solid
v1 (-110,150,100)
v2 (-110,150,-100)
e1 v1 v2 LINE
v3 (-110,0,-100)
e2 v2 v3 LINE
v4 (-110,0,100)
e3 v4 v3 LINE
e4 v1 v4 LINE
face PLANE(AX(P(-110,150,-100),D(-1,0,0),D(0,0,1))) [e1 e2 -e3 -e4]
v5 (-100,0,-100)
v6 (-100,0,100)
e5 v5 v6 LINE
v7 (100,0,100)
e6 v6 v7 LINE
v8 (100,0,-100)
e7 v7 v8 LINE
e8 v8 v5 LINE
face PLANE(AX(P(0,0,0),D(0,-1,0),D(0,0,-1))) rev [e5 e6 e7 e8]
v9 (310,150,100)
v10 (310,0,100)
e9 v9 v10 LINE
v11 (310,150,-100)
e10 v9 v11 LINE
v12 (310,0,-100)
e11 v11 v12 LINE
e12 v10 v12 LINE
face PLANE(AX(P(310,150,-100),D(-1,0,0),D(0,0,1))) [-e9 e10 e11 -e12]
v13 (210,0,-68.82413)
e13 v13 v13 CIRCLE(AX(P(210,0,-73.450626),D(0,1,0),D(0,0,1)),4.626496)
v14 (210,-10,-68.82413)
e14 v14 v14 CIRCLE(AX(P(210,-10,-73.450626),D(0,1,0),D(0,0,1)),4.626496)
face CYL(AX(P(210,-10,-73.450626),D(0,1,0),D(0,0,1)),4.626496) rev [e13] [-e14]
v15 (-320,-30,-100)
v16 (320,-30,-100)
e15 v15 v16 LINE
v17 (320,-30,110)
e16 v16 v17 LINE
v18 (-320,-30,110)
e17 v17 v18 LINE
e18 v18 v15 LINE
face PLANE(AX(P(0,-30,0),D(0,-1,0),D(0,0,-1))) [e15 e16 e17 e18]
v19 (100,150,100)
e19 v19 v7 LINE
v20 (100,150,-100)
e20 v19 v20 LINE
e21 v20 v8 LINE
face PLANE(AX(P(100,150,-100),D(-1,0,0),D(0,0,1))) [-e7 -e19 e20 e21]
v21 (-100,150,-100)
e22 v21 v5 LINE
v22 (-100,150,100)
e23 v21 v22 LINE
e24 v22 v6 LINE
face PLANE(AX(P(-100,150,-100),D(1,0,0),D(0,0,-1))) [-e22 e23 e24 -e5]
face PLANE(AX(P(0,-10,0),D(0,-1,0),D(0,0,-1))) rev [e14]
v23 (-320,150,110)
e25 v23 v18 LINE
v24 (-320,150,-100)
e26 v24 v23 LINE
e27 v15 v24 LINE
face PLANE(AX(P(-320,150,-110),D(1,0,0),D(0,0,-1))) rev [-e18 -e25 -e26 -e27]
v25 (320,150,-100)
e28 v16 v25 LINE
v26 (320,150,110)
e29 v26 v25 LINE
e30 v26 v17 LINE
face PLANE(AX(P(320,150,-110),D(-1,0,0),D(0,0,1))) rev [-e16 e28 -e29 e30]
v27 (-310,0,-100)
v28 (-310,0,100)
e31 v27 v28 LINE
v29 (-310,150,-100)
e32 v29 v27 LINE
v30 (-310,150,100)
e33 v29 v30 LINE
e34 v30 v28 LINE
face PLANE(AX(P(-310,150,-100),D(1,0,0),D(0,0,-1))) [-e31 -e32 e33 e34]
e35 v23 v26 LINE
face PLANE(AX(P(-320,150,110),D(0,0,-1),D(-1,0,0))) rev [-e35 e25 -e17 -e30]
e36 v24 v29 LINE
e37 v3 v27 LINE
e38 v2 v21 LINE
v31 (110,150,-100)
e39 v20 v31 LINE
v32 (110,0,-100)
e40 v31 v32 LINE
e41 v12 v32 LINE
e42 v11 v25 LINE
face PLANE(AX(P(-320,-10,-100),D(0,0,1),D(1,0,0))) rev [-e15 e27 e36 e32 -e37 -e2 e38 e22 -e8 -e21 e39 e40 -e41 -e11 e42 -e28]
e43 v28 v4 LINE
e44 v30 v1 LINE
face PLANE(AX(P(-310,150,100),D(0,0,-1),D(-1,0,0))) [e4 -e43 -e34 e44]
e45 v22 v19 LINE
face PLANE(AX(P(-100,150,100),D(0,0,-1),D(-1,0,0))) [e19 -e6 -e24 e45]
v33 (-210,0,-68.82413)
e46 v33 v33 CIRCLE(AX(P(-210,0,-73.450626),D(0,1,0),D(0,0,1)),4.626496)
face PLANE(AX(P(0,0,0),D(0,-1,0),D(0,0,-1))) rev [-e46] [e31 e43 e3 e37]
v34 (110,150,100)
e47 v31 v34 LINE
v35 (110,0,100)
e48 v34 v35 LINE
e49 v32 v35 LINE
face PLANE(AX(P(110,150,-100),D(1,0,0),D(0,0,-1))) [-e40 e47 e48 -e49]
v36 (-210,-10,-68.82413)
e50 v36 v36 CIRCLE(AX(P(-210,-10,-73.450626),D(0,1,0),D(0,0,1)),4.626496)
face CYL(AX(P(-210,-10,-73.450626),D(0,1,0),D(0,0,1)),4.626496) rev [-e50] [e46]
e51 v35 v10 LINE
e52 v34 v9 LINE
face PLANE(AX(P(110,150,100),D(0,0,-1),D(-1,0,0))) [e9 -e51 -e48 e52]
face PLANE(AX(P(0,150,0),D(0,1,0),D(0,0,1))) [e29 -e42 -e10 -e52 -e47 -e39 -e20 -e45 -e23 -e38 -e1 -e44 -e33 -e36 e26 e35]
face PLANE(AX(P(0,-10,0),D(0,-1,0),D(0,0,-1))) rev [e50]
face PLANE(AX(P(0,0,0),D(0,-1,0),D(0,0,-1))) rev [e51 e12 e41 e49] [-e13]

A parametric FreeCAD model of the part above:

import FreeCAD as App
import Part
import Sketcher


def add_polygon(sketch, points):
    """Adds a closed chain of lines whose ends are joined by coincident constraints."""
    first, n = sketch.GeometryCount, len(points)
    for a, b in zip(points, points[1:] + points[:1]):
        sketch.addGeometry(Part.LineSegment(App.Vector(*a, 0), App.Vector(*b, 0)), False)
    for i in range(n):
        sketch.addConstraint(Sketcher.Constraint("Coincident", first + i, 2, first + (i + 1) % n, 1))

doc = App.newDocument("Part")
params = doc.addObject("Spreadsheet::Sheet", "Params")
for row, (alias, value) in enumerate([
    ("sketch1_width", "640 mm"),
    ("sketch1_width2", "200 mm"),
    ("sketch1_height", "220 mm"),
    ("pad1_length", "150 mm"),
    ("sketch2_width", "640 mm"),
    ("sketch2_height", "220 mm"),
    ("pad2_length", "10 mm"),
    ("sketch4_width", "640 mm"),
    ("sketch4_height", "10 mm"),
    ("sketch5_width", "640 mm"),
    ("sketch5_height", "210 mm"),
    ("pad3_length", "20 mm"),
], start=1):
    params.set(f"A{row}", alias)
    params.set(f"B{row}", "=" + value)
    params.setAlias(f"B{row}", alias)

body = doc.addObject("PartDesign::Body", "Body")

sketch1 = body.newObject("Sketcher::SketchObject", "Sketch")
sketch1.AttachmentSupport = (doc.getObject("XZ_Plane"), [""])
sketch1.MapMode = "FlatFace"
add_polygon(sketch1, [(-320, -110), (-320, 110), (320, 110), (320, -110)])
add_polygon(sketch1, [(-110, 100), (-310, 100), (-310, -100), (-110, -100)])
add_polygon(sketch1, [(100, 100), (-100, 100), (-100, -100), (100, -100)])
add_polygon(sketch1, [(310, 100), (110, 100), (110, -100), (310, -100)])
sketch1.addConstraint(Sketcher.Constraint("Vertical", 0))
sketch1.addConstraint(Sketcher.Constraint("Horizontal", 1))
sketch1.addConstraint(Sketcher.Constraint("Vertical", 2))
sketch1.addConstraint(Sketcher.Constraint("Horizontal", 3))
sketch1.addConstraint(Sketcher.Constraint("Horizontal", 4))
sketch1.addConstraint(Sketcher.Constraint("Vertical", 5))
sketch1.addConstraint(Sketcher.Constraint("Horizontal", 6))
sketch1.addConstraint(Sketcher.Constraint("Vertical", 7))
sketch1.addConstraint(Sketcher.Constraint("Horizontal", 8))
sketch1.addConstraint(Sketcher.Constraint("Vertical", 9))
sketch1.addConstraint(Sketcher.Constraint("Horizontal", 10))
sketch1.addConstraint(Sketcher.Constraint("Vertical", 11))
sketch1.addConstraint(Sketcher.Constraint("Horizontal", 12))
sketch1.addConstraint(Sketcher.Constraint("Vertical", 13))
sketch1.addConstraint(Sketcher.Constraint("Horizontal", 14))
sketch1.addConstraint(Sketcher.Constraint("Vertical", 15))
sketch1.addConstraint(Sketcher.Constraint("Symmetric", 0, 2, 2, 2, -1, 1))
sketch1.addConstraint(Sketcher.Constraint("Symmetric", 8, 2, 10, 2, -1, 1))
sketch1.addConstraint(Sketcher.Constraint("Symmetric", 6, 2, 12, 2, -1, 1))
sketch1.addConstraint(Sketcher.Constraint("Symmetric", 4, 2, 14, 2, -1, 1))
sketch1.addConstraint(Sketcher.Constraint("Horizontal", 7, 2, 8, 2))
sketch1.addConstraint(Sketcher.Constraint("Horizontal", 6, 2, 9, 2))
sketch1.addConstraint(Sketcher.Constraint("Equal", 6, 8))
sketch1.addConstraint(Sketcher.Constraint("Equal", 14, 5))
sketch1.addConstraint(Sketcher.Constraint("DistanceX", 1, 1, 1, 2, 640.0))
sketch1.addConstraint(Sketcher.Constraint("DistanceX", 4, 2, 4, 1, 200.0))
sketch1.addConstraint(Sketcher.Constraint("DistanceY", 0, 1, 0, 2, 220.0))
sketch1.addConstraint(Sketcher.Constraint("DistanceX", 4, 2, -1, 1, 310.0))
sketch1.setExpression("Constraints[40]", "Params.sketch1_width")
sketch1.setExpression("Constraints[41]", "Params.sketch1_width2")
sketch1.setExpression("Constraints[42]", "Params.sketch1_height")
pad1 = body.newObject("PartDesign::Pad", "Pad")
pad1.Profile = sketch1
pad1.setExpression("Length", "Params.pad1_length")
pad1.Reversed = True

sketch2 = body.newObject("Sketcher::SketchObject", "Sketch001")
sketch2.AttachmentSupport = (doc.getObject("XZ_Plane"), [""])
sketch2.MapMode = "FlatFace"
add_polygon(sketch2, [(-320, 110), (-320, -110), (320, -110), (320, 110)])
sketch2.addConstraint(Sketcher.Constraint("Vertical", 0))
sketch2.addConstraint(Sketcher.Constraint("Horizontal", 1))
sketch2.addConstraint(Sketcher.Constraint("Vertical", 2))
sketch2.addConstraint(Sketcher.Constraint("Horizontal", 3))
sketch2.addConstraint(Sketcher.Constraint("Symmetric", 0, 2, 2, 2, -1, 1))
sketch2.addConstraint(Sketcher.Constraint("DistanceX", 1, 1, 1, 2, 640.0))
sketch2.addConstraint(Sketcher.Constraint("DistanceY", 0, 2, 0, 1, 220.0))
sketch2.setExpression("Constraints[9]", "Params.sketch2_width")
sketch2.setExpression("Constraints[10]", "Params.sketch2_height")
pad2 = body.newObject("PartDesign::Pad", "Pad001")
pad2.Profile = sketch2
pad2.setExpression("Length", "Params.pad2_length")

sketch3 = body.newObject("Sketcher::SketchObject", "Sketch002")
sketch3.AttachmentSupport = (doc.getObject("XZ_Plane"), [""])
sketch3.MapMode = "FlatFace"
sketch3.addGeometry(Part.Circle(App.Vector(-210, -73.450626, 0), App.Vector(0, 0, 1), 4.626496), False)
sketch3.addGeometry(Part.Circle(App.Vector(210, -73.450626, 0), App.Vector(0, 0, 1), 4.626496), False)
sketch3.addConstraint(Sketcher.Constraint("Equal", 0, 1))
sketch3.addConstraint(Sketcher.Constraint("Symmetric", 0, 3, 1, 3, -2))
sketch3.addConstraint(Sketcher.Constraint("DistanceX", 0, 3, -1, 1, 210.0))
sketch3.addConstraint(Sketcher.Constraint("Diameter", 0, 9.252991))
sketch3.addConstraint(Sketcher.Constraint("DistanceY", 0, 3, -1, 1, 73.450626))
pocket1 = body.newObject("PartDesign::Pocket", "Pocket")
pocket1.Profile = sketch3
pocket1.Type = "ThroughAll"
pocket1.Reversed = True

sketch4 = body.newObject("Sketcher::SketchObject", "Sketch003")
sketch4.AttachmentSupport = (doc.getObject("XZ_Plane"), [""])
sketch4.MapMode = "FlatFace"
sketch4.AttachmentOffset = App.Placement(App.Vector(0, 0, -150), App.Rotation())
add_polygon(sketch4, [(-320, -110), (-320, -100), (320, -100), (320, -110)])
sketch4.addConstraint(Sketcher.Constraint("Vertical", 0))
sketch4.addConstraint(Sketcher.Constraint("Horizontal", 1))
sketch4.addConstraint(Sketcher.Constraint("Vertical", 2))
sketch4.addConstraint(Sketcher.Constraint("Horizontal", 3))
sketch4.addConstraint(Sketcher.Constraint("DistanceX", 1, 1, 1, 2, 640.0))
sketch4.addConstraint(Sketcher.Constraint("DistanceY", 0, 1, 0, 2, 10.0))
sketch4.addConstraint(Sketcher.Constraint("DistanceX", 0, 2, -1, 1, 320.0))
sketch4.addConstraint(Sketcher.Constraint("DistanceY", 0, 2, -1, 1, 100.0))
sketch4.setExpression("Constraints[8]", "Params.sketch4_width")
sketch4.setExpression("Constraints[9]", "Params.sketch4_height")
pocket2 = body.newObject("PartDesign::Pocket", "Pocket001")
pocket2.Profile = sketch4
pocket2.Type = "ThroughAll"
pocket2.Reversed = True

sketch5 = body.newObject("Sketcher::SketchObject", "Sketch004")
sketch5.AttachmentSupport = (doc.getObject("XZ_Plane"), [""])
sketch5.MapMode = "FlatFace"
sketch5.AttachmentOffset = App.Placement(App.Vector(0, 0, 10), App.Rotation())
add_polygon(sketch5, [(-320, 110), (-320, -100), (320, -100), (320, 110)])
sketch5.addConstraint(Sketcher.Constraint("Vertical", 0))
sketch5.addConstraint(Sketcher.Constraint("Horizontal", 1))
sketch5.addConstraint(Sketcher.Constraint("Vertical", 2))
sketch5.addConstraint(Sketcher.Constraint("Horizontal", 3))
sketch5.addConstraint(Sketcher.Constraint("DistanceX", 1, 1, 1, 2, 640.0))
sketch5.addConstraint(Sketcher.Constraint("DistanceY", 0, 2, 0, 1, 210.0))
sketch5.addConstraint(Sketcher.Constraint("DistanceX", 0, 2, -1, 1, 320.0))
sketch5.addConstraint(Sketcher.Constraint("DistanceY", 0, 2, -1, 1, 100.0))
sketch5.setExpression("Constraints[8]", "Params.sketch5_width")
sketch5.setExpression("Constraints[9]", "Params.sketch5_height")
pad3 = body.newObject("PartDesign::Pad", "Pad002")
pad3.Profile = sketch5
pad3.setExpression("Length", "Params.pad3_length")

doc.recompute()
